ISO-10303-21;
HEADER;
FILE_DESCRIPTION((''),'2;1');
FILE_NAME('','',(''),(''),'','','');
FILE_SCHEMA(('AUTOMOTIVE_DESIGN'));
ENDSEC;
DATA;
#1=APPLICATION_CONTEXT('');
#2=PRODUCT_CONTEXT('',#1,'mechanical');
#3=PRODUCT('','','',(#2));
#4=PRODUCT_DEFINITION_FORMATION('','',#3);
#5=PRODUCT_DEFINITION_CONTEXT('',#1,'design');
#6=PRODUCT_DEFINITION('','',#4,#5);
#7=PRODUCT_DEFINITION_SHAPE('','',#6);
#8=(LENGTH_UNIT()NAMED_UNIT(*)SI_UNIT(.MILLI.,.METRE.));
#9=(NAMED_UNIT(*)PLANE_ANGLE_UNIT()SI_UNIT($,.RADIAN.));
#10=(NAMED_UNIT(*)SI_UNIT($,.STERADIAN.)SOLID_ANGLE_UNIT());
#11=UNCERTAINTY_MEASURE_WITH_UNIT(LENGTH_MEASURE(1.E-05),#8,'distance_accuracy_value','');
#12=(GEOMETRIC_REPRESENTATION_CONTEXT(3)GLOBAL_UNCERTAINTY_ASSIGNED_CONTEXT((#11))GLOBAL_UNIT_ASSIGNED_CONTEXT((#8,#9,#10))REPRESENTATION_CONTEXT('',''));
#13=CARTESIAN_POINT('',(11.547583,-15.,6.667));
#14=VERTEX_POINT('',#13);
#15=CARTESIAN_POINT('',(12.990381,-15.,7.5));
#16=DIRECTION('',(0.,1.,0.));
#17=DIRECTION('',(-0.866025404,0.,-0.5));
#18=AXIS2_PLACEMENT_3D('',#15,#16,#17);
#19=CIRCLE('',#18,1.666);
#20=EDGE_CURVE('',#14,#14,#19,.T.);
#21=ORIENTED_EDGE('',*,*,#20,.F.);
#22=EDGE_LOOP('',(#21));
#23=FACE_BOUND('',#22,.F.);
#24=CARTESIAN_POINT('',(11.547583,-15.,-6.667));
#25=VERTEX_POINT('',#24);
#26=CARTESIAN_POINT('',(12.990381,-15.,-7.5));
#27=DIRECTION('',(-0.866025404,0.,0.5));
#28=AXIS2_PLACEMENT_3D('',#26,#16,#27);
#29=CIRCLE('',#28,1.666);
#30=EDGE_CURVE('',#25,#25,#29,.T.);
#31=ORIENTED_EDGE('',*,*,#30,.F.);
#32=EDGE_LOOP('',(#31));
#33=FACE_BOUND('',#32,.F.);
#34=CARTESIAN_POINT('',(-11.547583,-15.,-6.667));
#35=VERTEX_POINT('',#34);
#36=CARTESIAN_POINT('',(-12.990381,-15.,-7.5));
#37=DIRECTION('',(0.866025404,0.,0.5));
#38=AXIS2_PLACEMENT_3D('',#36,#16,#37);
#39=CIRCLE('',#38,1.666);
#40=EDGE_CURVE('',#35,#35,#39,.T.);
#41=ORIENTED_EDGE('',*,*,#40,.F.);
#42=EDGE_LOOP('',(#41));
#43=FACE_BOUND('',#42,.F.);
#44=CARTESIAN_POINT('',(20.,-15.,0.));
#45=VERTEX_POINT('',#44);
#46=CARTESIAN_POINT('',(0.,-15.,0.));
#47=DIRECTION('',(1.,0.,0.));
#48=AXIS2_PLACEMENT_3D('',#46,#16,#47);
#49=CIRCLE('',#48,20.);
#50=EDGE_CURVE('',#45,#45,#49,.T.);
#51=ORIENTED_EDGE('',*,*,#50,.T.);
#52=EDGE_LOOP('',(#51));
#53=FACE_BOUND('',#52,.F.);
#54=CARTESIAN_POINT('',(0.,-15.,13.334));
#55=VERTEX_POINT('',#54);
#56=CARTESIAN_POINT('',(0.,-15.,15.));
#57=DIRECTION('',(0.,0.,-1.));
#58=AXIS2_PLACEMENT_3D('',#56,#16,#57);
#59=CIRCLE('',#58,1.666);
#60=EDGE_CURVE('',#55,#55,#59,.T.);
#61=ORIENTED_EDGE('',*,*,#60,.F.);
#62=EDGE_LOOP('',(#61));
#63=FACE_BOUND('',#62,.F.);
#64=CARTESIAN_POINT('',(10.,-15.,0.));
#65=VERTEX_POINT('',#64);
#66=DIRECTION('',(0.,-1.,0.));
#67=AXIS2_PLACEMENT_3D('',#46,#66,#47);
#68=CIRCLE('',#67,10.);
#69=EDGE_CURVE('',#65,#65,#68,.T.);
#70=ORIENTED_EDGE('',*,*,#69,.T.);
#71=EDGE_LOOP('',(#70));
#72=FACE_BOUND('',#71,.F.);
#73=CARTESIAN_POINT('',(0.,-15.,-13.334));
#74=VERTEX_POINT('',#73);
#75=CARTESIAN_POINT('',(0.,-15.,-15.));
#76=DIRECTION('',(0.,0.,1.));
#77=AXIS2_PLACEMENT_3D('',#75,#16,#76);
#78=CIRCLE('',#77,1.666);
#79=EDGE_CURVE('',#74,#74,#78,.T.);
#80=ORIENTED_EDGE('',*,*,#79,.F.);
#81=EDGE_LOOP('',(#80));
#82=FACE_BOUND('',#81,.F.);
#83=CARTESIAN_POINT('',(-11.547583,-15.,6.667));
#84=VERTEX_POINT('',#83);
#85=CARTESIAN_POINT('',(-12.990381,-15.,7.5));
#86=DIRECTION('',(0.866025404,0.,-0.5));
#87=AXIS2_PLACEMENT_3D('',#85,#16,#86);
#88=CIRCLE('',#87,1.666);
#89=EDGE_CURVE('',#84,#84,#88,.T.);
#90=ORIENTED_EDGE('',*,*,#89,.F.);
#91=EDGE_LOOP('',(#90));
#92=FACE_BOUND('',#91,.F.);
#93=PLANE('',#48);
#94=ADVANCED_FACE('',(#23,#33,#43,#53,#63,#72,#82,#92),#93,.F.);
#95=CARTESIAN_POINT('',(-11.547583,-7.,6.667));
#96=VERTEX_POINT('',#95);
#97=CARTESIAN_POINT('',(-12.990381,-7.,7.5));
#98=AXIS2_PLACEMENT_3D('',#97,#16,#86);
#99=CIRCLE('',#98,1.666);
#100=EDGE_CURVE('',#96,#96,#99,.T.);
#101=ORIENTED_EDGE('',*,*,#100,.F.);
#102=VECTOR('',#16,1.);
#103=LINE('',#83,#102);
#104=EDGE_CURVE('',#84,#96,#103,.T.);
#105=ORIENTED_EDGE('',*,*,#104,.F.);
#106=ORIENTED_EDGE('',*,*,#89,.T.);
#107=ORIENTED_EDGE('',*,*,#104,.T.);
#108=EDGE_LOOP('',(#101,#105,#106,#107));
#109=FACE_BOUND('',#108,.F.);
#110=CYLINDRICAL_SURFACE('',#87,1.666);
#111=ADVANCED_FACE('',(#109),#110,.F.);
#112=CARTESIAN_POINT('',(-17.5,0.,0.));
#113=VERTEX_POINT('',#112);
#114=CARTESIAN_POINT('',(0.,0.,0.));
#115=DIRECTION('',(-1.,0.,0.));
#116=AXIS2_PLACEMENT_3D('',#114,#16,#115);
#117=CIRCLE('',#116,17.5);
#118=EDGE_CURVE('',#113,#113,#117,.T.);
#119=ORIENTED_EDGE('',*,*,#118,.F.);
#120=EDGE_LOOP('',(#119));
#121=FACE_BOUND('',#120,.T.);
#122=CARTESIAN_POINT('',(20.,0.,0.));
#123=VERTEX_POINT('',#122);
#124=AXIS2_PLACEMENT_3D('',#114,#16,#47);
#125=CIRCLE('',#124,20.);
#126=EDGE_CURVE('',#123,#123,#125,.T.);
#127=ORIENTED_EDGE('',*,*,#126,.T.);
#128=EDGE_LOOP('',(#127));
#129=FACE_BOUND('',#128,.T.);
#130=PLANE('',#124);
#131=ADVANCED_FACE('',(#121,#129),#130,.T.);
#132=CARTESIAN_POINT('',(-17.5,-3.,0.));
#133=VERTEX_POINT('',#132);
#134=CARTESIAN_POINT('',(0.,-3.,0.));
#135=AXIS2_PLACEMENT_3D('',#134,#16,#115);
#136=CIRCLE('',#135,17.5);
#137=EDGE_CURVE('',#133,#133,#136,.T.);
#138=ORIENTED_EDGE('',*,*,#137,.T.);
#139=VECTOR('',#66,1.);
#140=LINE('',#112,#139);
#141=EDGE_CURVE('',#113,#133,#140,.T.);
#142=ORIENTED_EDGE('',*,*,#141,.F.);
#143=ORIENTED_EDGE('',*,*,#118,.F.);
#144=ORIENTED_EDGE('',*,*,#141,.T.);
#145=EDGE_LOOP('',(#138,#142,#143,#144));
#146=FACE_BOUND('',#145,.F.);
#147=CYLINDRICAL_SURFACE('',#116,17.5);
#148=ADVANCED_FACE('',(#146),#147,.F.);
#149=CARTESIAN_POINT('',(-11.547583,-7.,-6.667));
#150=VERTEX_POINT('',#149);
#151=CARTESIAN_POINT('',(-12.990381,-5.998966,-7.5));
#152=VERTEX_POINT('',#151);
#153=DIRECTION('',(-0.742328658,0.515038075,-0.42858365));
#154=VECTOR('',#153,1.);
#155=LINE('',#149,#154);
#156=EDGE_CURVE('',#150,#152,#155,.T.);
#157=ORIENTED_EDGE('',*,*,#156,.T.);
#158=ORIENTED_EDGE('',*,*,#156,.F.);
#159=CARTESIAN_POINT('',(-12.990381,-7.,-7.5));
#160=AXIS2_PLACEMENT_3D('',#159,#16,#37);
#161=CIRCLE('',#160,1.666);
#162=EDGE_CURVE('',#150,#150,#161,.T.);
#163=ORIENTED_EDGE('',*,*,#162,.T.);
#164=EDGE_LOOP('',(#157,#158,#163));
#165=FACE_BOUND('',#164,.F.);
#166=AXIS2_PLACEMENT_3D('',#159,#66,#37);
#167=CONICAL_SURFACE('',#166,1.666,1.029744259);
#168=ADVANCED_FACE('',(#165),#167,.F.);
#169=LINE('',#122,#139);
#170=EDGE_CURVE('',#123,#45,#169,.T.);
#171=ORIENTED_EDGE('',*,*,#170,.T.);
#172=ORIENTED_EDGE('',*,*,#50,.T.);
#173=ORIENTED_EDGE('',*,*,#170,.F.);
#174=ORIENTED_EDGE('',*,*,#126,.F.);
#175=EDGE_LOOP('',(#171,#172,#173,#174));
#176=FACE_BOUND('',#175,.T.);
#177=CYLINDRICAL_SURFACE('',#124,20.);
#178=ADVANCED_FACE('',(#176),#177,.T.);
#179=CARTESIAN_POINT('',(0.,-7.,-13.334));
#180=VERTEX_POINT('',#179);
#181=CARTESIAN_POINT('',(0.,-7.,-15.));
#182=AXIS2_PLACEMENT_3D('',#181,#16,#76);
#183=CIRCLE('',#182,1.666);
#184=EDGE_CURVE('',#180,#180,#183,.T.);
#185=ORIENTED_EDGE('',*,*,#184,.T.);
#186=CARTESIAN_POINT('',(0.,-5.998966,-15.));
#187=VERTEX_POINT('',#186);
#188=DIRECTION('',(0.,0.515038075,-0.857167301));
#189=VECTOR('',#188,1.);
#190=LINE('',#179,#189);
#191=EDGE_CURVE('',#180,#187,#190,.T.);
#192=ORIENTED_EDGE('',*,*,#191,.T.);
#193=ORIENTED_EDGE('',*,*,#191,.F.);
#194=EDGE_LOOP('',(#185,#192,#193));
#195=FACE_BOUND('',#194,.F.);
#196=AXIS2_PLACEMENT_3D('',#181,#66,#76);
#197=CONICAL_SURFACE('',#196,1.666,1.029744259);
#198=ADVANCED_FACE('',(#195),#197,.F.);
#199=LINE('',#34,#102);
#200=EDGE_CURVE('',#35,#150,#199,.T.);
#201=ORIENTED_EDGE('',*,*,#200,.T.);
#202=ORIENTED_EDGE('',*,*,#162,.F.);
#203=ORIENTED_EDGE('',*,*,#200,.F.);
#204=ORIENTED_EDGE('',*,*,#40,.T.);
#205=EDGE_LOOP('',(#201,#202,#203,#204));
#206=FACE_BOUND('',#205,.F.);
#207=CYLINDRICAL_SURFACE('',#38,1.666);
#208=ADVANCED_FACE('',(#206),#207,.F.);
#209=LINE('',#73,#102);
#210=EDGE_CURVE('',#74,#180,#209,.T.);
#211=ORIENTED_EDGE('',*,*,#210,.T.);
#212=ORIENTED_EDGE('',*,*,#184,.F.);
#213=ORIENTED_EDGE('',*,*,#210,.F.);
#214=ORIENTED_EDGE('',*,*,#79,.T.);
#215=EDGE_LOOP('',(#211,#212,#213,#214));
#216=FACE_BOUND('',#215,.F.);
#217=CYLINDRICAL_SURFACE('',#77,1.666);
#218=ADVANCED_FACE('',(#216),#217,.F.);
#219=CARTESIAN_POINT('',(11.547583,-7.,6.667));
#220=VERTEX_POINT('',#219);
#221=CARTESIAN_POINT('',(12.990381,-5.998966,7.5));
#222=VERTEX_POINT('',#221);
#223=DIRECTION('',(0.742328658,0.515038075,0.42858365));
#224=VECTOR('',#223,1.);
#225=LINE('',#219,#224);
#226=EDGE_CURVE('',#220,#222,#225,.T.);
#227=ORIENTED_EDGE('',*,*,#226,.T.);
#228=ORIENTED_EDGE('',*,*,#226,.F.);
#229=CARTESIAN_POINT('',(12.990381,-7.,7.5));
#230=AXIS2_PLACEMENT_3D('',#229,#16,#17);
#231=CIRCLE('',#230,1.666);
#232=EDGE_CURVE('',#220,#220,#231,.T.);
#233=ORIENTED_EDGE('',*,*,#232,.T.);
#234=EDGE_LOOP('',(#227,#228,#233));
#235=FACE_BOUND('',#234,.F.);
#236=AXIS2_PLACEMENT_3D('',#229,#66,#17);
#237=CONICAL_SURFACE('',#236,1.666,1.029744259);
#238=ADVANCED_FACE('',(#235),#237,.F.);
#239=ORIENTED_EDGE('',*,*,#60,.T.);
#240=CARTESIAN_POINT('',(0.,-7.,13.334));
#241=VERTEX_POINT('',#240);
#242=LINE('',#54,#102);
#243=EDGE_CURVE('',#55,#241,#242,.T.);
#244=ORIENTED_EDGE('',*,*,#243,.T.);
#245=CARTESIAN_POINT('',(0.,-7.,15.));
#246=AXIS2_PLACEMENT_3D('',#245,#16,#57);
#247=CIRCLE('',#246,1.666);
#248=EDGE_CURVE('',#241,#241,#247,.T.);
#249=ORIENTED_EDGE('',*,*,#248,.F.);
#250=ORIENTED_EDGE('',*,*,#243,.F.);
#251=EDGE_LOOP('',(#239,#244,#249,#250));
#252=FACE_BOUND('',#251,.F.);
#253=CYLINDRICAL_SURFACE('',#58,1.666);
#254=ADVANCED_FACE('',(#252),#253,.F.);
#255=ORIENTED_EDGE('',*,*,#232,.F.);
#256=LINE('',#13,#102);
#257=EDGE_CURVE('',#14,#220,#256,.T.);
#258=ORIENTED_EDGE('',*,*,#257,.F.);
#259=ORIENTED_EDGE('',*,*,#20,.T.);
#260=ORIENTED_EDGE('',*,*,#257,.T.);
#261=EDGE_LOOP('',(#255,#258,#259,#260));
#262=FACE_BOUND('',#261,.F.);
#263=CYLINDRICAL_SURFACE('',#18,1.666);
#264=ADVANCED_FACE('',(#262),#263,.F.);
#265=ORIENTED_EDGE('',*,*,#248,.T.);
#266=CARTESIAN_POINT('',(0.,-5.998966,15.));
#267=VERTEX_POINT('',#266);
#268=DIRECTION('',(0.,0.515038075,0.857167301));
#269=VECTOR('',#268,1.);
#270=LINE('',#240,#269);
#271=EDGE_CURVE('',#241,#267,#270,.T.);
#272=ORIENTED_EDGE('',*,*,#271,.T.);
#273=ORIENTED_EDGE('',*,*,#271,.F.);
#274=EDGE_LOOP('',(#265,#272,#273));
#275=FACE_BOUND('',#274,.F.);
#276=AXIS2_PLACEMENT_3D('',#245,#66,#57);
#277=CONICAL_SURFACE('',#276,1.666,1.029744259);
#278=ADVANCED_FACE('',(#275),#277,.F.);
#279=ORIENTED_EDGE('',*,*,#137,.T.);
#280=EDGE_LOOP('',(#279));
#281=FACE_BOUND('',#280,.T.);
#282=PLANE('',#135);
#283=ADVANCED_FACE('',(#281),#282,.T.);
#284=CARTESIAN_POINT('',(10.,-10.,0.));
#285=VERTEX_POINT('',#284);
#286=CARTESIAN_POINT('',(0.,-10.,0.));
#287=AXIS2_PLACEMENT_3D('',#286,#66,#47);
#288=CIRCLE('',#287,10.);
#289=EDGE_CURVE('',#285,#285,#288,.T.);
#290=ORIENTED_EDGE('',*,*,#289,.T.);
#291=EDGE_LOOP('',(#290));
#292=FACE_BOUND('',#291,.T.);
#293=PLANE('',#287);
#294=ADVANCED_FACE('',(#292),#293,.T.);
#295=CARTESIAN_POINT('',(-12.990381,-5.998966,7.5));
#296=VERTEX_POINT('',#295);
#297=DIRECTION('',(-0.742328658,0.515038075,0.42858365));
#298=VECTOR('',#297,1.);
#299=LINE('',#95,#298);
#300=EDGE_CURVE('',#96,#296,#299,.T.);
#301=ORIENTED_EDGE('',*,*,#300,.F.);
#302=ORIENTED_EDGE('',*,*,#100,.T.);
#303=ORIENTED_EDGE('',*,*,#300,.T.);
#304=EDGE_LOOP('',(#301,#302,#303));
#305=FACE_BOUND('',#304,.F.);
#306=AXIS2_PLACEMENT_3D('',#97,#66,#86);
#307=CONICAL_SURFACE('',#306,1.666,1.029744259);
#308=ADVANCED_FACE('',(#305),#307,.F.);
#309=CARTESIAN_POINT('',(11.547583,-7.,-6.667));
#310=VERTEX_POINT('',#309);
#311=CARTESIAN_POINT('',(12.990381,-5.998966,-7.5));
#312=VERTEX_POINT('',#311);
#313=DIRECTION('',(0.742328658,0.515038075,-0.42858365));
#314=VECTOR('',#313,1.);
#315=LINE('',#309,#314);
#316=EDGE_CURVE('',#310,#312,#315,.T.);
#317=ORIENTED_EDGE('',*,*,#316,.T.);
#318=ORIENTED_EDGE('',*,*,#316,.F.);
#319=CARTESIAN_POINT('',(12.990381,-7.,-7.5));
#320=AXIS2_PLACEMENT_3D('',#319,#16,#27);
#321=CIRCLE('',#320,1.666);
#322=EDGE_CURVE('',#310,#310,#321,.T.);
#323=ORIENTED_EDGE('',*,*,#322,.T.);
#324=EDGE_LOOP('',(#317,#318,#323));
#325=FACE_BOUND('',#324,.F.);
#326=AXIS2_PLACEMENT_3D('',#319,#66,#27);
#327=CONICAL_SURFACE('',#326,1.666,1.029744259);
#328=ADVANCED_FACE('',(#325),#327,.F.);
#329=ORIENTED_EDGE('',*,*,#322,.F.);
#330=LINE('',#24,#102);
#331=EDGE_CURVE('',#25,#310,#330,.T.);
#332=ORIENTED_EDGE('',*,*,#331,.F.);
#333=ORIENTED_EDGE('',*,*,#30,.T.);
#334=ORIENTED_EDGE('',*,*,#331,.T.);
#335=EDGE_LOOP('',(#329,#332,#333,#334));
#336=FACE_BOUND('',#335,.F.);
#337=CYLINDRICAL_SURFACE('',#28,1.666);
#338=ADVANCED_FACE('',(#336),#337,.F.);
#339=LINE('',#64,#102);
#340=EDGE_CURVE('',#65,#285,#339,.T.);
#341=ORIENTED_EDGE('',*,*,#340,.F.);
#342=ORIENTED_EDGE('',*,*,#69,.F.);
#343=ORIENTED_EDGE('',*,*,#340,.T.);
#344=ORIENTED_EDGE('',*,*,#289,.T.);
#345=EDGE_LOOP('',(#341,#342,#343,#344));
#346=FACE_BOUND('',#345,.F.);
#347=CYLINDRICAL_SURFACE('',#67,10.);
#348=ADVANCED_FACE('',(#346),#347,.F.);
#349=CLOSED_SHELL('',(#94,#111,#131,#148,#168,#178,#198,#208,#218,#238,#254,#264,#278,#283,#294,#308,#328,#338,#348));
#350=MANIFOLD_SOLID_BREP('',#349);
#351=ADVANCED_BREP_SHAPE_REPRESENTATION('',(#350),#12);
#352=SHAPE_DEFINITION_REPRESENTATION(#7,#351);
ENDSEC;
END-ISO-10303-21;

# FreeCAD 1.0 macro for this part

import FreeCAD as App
import Part
import Sketcher

V = App.Vector

doc = App.newDocument("Part")
body = doc.addObject("PartDesign::Body", "Body")

# Sketch on XZ plane
sketch1 = body.newObject("Sketcher::SketchObject", "Sketch")
sketch1.AttachmentSupport = (doc.getObject("XZ_Plane"), [""])
sketch1.MapMode = "FlatFace"
sketch1.addGeometry(Part.Circle(V(0, 0, 0), V(0, 0, 1), 20), False)
sketch1.addConstraint(Sketcher.Constraint("Coincident", 0, 3, -1, 1))
sketch1.addConstraint(Sketcher.Constraint("Diameter", 0, 40.0))
pad1 = body.newObject("PartDesign::Pad", "Pad")
pad1.Profile = sketch1
pad1.Length = 15

# Sketch on XZ plane
sketch2 = body.newObject("Sketcher::SketchObject", "Sketch001")
sketch2.AttachmentSupport = (doc.getObject("XZ_Plane"), [""])
sketch2.MapMode = "FlatFace"
sketch2.AttachmentOffset = App.Placement(V(0, 0, 15), App.Rotation())
sketch2.addGeometry(Part.Circle(V(0, 0, 0), V(0, 0, 1), 10), False)
sketch2.addConstraint(Sketcher.Constraint("Coincident", 0, 3, -1, 1))
sketch2.addConstraint(Sketcher.Constraint("Diameter", 0, 20.0))
pocket1 = body.newObject("PartDesign::Pocket", "Pocket")
pocket1.Profile = sketch2
pocket1.Length = 5

# Sketch on XZ plane
sketch3 = body.newObject("Sketcher::SketchObject", "Sketch002")
sketch3.AttachmentSupport = (doc.getObject("XZ_Plane"), [""])
sketch3.MapMode = "FlatFace"
sketch3.AttachmentOffset = App.Placement(V(0, 0, 15), App.Rotation())
sketch3.addGeometry(Part.Circle(V(0, 15, 0), V(0, 0, 1), 1.7), False)
sketch3.addConstraint(Sketcher.Constraint("PointOnObject", 0, 3, -2))
sketch3.addConstraint(Sketcher.Constraint("Diameter", 0, 3.332))
sketch3.addConstraint(Sketcher.Constraint("DistanceY", -1, 1, 0, 3, 15.0))
doc.recompute()
hole = body.newObject("PartDesign::Hole", "Hole")
hole.Profile = sketch3
hole.ThreadType = "None"
hole.Diameter = 3.332
hole.DepthType = "Dimension"
hole.Depth = 8
hole.DrillPoint = "Angled"
hole.DrillPointAngle = 118
doc.recompute()

polarpattern = body.newObject("PartDesign::PolarPattern", "PolarPattern")
polarpattern.Originals = [hole]
polarpattern.Axis = (doc.getObject("Y_Axis"), [""])
polarpattern.Angle = 360
polarpattern.Occurrences = 6
body.Tip = polarpattern

# Sketch on XZ plane
sketch4 = body.newObject("Sketcher::SketchObject", "Sketch003")
sketch4.AttachmentSupport = (doc.getObject("XZ_Plane"), [""])
sketch4.MapMode = "FlatFace"
sketch4.addGeometry(Part.Circle(V(0, 0, 0), V(0, 0, 1), 18), False)
sketch4.addConstraint(Sketcher.Constraint("Coincident", 0, 3, -1, 1))
sketch4.addConstraint(Sketcher.Constraint("Diameter", 0, 35.0))
pocket2 = body.newObject("PartDesign::Pocket", "Pocket001")
pocket2.Profile = sketch4
pocket2.Length = 3
pocket2.Reversed = True

doc.recompute()
